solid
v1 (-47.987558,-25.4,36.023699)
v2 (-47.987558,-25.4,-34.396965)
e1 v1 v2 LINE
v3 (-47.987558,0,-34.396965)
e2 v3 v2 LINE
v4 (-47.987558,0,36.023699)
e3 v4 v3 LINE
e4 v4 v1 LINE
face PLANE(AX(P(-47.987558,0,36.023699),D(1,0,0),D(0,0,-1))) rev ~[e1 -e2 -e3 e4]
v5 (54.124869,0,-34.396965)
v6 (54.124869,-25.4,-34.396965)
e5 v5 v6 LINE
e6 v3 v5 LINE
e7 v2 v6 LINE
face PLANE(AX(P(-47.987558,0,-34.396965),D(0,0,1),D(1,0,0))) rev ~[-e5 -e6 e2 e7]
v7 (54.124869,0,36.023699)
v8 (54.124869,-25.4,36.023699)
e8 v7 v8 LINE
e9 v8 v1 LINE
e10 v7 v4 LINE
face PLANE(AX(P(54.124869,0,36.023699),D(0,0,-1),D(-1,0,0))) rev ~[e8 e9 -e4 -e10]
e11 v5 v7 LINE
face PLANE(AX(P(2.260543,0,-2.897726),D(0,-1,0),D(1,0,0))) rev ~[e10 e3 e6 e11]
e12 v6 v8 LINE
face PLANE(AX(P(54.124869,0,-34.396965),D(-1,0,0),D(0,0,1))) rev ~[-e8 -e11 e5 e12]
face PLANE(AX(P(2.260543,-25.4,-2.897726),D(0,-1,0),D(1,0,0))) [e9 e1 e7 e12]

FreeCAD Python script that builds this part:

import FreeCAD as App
import Part
import Sketcher
from FreeCAD import Vector
Q = App.Units.Quantity


def add_polygon(sketch, points):
    """Adds a closed chain of lines whose ends are joined by coincident constraints."""
    first, n = sketch.GeometryCount, len(points)
    for a, b in zip(points, points[1:] + points[:1]):
        sketch.addGeometry(Part.LineSegment(App.Vector(*a, 0), App.Vector(*b, 0)), False)
    for i in range(n):
        sketch.addConstraint(Sketcher.Constraint("Coincident", first + i, 2, first + (i + 1) % n, 1))

doc = App.newDocument("Part")
body = doc.addObject("PartDesign::Body", "Body")

# Sketch on XZ plane
sketch1 = body.newObject("Sketcher::SketchObject", "Sketch")
sketch1.AttachmentSupport = (doc.getObject("XZ_Plane"), [""])
sketch1.MapMode = "FlatFace"
add_polygon(sketch1, [(-47.987558, 36.023699), (-47.987558, -34.396965), (54.124869, -34.396965), (54.124869, 36.023699)])  # lines 0-3
sketch1.addConstraint(Sketcher.Constraint("Vertical", 0))
sketch1.addConstraint(Sketcher.Constraint("Horizontal", 1))
sketch1.addConstraint(Sketcher.Constraint("Vertical", 2))
sketch1.addConstraint(Sketcher.Constraint("Horizontal", 3))
sketch1.addConstraint(Sketcher.Constraint("DistanceY", -1, 1, 2, 2, Q("36.023699 mm")))
sketch1.addConstraint(Sketcher.Constraint("DistanceX", 1, 1, 1, 2, Q("102.112427 mm")))
sketch1.addConstraint(Sketcher.Constraint("DistanceY", 0, 2, 0, 1, Q("70.420664 mm")))
sketch1.addConstraint(Sketcher.Constraint("DistanceX", -1, 1, 1, 2, Q("54.124869 mm")))
pad1 = body.newObject("PartDesign::Pad", "Pad")
pad1.Profile = sketch1
pad1.Length = Q("1 in")

doc.recompute()
